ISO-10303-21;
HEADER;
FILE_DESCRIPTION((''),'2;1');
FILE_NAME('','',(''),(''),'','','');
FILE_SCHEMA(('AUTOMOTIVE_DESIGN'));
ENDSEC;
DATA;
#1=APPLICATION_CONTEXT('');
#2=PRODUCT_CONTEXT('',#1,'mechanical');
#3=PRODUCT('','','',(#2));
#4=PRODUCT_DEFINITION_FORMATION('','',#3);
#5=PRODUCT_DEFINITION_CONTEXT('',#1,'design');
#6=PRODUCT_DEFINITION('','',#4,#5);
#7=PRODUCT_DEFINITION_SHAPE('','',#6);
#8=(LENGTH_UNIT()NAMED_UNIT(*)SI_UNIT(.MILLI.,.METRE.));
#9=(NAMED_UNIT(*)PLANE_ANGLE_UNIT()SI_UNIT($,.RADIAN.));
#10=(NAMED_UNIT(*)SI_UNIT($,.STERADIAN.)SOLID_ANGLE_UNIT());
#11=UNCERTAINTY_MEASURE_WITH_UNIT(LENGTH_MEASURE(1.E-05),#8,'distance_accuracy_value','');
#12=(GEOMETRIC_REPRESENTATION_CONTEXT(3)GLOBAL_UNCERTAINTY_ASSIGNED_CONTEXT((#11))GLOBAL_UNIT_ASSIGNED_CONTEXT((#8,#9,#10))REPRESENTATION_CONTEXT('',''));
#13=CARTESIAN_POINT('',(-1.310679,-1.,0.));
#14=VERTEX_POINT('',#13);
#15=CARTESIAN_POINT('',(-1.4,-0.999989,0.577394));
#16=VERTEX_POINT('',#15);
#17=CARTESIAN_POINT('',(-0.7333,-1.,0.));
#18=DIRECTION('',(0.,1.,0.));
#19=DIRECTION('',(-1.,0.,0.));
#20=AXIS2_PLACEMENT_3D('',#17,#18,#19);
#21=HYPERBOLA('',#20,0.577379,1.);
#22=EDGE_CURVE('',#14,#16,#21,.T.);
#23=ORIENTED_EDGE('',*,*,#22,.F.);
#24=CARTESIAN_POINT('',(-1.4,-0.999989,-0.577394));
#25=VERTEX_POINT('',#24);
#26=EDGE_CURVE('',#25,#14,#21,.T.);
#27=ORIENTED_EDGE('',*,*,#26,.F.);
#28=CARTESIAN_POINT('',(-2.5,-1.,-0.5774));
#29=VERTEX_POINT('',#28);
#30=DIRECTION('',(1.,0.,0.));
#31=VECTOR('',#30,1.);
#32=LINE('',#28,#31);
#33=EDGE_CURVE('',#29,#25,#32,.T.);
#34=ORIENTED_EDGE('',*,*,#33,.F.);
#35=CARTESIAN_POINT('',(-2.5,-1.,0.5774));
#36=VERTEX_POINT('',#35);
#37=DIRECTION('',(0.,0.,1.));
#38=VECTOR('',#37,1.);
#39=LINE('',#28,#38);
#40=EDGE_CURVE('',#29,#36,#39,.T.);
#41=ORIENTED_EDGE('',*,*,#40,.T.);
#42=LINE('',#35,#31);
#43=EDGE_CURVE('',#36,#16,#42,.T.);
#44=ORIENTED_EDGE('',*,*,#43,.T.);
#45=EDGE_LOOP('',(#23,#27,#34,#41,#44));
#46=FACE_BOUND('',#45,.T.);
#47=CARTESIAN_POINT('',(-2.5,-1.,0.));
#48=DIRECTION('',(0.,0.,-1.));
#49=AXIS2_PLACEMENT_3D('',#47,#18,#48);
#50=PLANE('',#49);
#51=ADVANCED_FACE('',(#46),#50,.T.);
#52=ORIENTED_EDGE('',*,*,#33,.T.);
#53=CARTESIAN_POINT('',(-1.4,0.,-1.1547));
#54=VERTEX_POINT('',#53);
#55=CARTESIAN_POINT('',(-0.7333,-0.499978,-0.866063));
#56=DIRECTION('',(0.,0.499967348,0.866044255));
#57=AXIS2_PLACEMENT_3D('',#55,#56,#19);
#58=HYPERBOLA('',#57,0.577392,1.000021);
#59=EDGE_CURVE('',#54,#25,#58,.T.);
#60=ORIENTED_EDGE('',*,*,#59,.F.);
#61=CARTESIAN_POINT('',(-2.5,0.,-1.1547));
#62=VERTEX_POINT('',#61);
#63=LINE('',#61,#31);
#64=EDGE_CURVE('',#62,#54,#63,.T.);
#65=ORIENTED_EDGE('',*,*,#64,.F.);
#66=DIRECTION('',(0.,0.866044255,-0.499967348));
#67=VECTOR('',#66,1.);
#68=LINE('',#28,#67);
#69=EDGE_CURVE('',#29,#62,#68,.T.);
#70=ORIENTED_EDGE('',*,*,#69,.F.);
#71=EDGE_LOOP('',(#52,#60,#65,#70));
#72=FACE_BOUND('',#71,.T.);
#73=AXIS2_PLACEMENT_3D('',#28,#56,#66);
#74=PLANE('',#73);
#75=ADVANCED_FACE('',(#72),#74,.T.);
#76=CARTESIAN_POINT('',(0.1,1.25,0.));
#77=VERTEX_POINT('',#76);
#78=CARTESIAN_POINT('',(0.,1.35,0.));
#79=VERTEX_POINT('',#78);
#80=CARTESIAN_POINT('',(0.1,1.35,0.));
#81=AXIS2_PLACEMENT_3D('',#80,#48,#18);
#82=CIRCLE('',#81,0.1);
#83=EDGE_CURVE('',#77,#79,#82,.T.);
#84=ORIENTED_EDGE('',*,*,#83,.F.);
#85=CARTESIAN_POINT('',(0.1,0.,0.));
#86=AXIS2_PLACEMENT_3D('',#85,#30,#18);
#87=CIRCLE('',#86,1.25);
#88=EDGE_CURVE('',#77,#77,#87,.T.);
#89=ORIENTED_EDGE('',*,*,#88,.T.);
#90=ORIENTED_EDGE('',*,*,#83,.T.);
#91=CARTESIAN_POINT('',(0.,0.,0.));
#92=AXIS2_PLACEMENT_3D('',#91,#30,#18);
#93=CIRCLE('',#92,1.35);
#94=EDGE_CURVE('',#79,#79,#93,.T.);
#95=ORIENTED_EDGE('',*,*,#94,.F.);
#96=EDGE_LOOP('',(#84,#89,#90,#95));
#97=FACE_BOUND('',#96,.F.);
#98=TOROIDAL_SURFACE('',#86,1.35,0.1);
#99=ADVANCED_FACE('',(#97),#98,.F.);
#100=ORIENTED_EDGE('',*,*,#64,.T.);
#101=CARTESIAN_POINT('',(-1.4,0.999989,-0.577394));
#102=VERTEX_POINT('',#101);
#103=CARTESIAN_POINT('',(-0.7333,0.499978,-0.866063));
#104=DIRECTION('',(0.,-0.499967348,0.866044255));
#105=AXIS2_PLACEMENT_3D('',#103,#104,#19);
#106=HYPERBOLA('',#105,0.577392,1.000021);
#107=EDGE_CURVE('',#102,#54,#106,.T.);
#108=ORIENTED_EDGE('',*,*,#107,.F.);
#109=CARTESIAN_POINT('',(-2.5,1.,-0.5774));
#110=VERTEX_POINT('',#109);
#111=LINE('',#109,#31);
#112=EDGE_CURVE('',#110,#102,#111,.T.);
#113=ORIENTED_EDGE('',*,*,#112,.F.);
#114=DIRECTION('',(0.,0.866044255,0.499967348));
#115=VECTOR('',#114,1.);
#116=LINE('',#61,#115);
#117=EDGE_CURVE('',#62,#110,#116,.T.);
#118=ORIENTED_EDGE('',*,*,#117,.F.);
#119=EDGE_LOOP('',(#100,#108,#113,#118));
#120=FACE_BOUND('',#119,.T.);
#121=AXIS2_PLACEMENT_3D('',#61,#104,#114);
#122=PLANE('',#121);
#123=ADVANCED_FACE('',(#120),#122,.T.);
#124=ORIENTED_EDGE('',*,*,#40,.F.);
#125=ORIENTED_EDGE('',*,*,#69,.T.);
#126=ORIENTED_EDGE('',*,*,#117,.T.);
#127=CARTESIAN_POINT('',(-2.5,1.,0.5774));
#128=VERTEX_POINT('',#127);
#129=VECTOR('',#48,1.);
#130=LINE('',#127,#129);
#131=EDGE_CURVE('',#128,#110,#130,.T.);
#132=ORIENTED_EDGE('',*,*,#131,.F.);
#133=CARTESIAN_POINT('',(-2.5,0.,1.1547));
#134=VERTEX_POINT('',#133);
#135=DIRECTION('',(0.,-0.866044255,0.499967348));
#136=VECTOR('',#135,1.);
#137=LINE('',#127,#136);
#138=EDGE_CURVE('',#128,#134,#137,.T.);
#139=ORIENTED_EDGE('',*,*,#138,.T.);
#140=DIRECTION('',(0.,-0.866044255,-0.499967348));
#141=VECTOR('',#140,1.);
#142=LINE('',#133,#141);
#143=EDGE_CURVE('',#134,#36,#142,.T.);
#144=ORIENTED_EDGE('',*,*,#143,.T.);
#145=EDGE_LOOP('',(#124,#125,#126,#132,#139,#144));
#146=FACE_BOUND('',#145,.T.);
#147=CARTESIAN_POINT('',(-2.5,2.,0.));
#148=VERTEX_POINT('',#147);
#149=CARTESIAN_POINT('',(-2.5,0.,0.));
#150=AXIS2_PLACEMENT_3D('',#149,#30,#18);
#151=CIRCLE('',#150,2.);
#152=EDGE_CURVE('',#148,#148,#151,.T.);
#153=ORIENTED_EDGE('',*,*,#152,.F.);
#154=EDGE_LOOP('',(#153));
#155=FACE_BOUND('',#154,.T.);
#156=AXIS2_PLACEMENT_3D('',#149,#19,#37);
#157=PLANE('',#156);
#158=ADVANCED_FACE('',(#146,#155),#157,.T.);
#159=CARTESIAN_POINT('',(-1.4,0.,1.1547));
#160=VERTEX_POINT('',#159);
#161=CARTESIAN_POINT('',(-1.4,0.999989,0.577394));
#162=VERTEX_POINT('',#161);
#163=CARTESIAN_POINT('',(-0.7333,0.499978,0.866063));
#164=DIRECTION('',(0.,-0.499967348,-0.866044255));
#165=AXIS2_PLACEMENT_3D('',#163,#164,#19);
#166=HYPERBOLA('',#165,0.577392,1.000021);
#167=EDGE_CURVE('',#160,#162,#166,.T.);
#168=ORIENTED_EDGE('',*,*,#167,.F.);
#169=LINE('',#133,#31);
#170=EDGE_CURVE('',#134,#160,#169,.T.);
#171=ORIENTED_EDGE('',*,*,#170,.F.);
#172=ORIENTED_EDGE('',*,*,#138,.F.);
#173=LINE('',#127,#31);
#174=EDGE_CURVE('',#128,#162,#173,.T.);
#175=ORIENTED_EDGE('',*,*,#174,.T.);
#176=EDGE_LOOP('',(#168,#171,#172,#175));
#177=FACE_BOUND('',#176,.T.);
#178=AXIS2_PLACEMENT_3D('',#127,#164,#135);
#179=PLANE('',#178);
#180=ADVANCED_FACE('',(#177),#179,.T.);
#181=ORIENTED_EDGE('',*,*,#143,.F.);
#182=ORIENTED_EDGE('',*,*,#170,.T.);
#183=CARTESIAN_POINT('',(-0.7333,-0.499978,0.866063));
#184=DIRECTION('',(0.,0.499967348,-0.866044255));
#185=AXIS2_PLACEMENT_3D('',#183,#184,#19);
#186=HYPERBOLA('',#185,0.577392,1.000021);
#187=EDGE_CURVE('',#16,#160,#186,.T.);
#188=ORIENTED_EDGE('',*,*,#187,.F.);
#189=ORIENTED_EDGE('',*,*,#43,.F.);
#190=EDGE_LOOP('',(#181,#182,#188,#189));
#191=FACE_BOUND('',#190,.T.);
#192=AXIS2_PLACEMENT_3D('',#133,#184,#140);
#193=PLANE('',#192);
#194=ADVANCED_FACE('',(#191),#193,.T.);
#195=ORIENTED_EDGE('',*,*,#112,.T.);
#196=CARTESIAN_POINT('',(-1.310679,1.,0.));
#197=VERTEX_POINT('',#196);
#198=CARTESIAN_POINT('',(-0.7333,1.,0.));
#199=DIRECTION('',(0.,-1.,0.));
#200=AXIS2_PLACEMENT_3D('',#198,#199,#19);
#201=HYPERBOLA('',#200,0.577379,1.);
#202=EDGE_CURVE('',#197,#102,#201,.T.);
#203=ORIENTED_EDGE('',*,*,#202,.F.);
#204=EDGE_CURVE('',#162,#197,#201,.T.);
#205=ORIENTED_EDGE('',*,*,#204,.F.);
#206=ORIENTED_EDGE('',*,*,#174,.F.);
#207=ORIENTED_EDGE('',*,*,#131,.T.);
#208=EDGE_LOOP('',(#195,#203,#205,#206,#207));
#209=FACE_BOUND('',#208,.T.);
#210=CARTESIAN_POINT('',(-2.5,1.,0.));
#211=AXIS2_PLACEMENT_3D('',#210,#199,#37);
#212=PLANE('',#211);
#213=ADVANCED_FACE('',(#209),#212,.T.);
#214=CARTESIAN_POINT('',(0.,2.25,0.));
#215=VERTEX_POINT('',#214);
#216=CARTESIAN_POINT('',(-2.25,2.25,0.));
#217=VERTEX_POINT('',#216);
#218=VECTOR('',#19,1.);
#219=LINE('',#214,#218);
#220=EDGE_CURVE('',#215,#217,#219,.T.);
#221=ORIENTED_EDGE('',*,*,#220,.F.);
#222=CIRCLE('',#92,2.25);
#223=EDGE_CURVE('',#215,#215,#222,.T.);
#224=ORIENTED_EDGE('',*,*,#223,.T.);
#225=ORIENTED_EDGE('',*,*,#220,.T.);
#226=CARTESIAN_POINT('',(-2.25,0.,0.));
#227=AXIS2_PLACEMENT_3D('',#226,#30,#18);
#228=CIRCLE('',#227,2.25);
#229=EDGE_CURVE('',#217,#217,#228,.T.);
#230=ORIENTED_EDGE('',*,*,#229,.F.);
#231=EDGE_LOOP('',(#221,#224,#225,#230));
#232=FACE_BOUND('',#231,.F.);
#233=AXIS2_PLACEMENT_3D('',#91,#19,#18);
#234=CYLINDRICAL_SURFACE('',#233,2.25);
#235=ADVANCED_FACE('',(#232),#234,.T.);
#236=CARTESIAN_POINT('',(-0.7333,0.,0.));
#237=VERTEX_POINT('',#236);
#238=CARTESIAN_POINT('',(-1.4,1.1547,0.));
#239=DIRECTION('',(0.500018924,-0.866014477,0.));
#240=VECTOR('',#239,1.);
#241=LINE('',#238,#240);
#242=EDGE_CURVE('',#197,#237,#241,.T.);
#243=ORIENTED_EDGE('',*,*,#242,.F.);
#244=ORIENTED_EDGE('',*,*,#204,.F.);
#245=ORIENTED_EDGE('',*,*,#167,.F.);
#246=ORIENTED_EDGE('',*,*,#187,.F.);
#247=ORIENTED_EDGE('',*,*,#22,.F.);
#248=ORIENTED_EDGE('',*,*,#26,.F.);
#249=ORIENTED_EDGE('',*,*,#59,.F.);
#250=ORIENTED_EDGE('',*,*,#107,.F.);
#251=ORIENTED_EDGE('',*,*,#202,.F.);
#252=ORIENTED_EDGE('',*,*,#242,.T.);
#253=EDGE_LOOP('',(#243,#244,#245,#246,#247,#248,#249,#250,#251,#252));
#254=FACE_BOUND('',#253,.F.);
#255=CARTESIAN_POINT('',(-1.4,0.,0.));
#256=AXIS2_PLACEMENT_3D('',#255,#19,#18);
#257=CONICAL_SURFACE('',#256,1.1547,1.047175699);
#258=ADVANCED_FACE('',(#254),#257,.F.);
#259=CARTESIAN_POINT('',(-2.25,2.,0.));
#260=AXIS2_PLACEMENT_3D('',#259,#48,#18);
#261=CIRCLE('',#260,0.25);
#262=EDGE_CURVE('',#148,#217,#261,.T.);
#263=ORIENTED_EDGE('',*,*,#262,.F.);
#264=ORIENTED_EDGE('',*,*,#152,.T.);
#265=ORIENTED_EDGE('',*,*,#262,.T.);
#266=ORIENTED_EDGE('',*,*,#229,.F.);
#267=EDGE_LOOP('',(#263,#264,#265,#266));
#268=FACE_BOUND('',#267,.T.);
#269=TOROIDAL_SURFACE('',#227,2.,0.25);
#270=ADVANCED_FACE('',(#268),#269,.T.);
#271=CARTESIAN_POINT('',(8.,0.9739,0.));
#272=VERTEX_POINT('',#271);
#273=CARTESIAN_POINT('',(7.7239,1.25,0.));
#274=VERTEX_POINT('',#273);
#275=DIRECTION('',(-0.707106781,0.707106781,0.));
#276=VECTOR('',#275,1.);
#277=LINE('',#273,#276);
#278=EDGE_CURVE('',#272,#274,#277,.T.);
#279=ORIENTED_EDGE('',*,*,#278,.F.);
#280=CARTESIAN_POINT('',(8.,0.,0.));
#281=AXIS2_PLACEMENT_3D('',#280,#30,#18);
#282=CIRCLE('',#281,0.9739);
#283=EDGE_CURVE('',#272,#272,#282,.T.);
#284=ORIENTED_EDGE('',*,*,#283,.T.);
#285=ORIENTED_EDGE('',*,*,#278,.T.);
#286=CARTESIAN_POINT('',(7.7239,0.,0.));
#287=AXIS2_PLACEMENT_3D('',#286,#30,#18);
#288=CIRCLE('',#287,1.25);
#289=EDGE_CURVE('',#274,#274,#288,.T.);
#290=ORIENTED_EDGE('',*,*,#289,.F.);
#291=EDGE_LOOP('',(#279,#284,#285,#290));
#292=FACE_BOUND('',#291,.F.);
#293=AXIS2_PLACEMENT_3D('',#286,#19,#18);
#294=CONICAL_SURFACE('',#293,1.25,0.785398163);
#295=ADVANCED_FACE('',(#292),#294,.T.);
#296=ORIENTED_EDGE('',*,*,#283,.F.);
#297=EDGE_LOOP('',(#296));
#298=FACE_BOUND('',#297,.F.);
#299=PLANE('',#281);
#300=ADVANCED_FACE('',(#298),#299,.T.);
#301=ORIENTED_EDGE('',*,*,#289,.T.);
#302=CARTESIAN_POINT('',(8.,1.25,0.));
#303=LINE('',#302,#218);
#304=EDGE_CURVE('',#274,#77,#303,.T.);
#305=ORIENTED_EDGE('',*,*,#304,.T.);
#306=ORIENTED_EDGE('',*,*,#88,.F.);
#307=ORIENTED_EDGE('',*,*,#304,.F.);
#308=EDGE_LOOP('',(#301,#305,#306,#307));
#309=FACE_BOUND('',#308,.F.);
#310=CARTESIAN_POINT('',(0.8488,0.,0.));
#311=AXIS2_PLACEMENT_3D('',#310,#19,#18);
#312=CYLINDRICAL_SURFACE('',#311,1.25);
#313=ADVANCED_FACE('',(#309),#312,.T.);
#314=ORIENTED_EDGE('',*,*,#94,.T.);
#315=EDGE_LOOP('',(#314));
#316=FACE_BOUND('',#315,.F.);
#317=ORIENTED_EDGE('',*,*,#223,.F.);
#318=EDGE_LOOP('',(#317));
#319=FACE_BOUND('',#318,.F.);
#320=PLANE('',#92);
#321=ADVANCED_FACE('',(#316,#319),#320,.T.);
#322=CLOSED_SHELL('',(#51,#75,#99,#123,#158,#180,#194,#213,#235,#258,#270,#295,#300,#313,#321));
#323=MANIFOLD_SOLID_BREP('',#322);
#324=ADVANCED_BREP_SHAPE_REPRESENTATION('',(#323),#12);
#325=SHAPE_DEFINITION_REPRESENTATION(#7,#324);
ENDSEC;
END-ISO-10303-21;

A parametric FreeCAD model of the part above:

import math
import FreeCAD as App
import Part
import Sketcher

V = App.Vector


def edges_at(feature, points):
    """Names of the edges that pass closest to the given points."""
    edges = feature.Shape.Edges
    near = lambda p: min(range(len(edges)), key=lambda i: edges[i].distToShape(Part.Vertex(*p))[0])
    return sorted({f"Edge{near(p) + 1}" for p in points})

doc = App.newDocument("Part")
body = doc.addObject("PartDesign::Body", "Body")

# Sketch on XY plane
sketch1 = body.newObject("Sketcher::SketchObject", "Sketch")
sketch1.AttachmentSupport = (doc.getObject("XY_Plane"), [""])
sketch1.MapMode = "FlatFace"
sketch1.addGeometry([
    Part.LineSegment(V(-1.4, 1.2, 0), V(-0.7, 0, 0)),  # 0
    Part.LineSegment(V(-0.7, 0, 0), V(8, 0, 0)),  # 1
    Part.LineSegment(V(8, 0, 0), V(8, 1.2, 0)),  # 2
    Part.LineSegment(V(8, 1.2, 0), V(0, 1.2, 0)),  # 3
    Part.LineSegment(V(0, 1.2, 0), V(0, 2.2, 0)),  # 4
    Part.LineSegment(V(0, 2.2, 0), V(-2.5, 2.2, 0)),  # 5
    Part.LineSegment(V(-2.5, 2.2, 0), V(-2.5, 1.2, 0)),  # 6
    Part.LineSegment(V(-2.5, 1.2, 0), V(-1.4, 1.2, 0)),  # 7
], False)
sketch1.addConstraint([
    Sketcher.Constraint("Coincident", 0, 2, 1, 1),
    Sketcher.Constraint("Coincident", 1, 2, 2, 1),
    Sketcher.Constraint("Coincident", 2, 2, 3, 1),
    Sketcher.Constraint("Coincident", 3, 2, 4, 1),
    Sketcher.Constraint("Coincident", 4, 2, 5, 1),
    Sketcher.Constraint("Coincident", 5, 2, 6, 1),
    Sketcher.Constraint("Coincident", 6, 2, 7, 1),
    Sketcher.Constraint("Coincident", 7, 2, 0, 1),
    Sketcher.Constraint("Horizontal", 1),
    Sketcher.Constraint("Vertical", 2),
    Sketcher.Constraint("Horizontal", 3),
    Sketcher.Constraint("Vertical", 4),
    Sketcher.Constraint("Horizontal", 5),
    Sketcher.Constraint("Vertical", 6),
    Sketcher.Constraint("Horizontal", 7),
    Sketcher.Constraint("PointOnObject", 0, 2, -1),
    Sketcher.Constraint("PointOnObject", 3, 2, -2),
    Sketcher.Constraint("DistanceX", 3, 2, 3, 1, 8.0),
    Sketcher.Constraint("DistanceX", 5, 2, 5, 1, 2.5),
    Sketcher.Constraint("DistanceX", 7, 1, 7, 2, 1.1),
    Sketcher.Constraint("DistanceY", 4, 1, 4, 2, 1.0),
    Sketcher.Constraint("DistanceY", 2, 1, 2, 2, 1.25),
    Sketcher.Constraint("DistanceX", 1, 1, 1, 2, 8.7333),
    Sketcher.Constraint("DistanceY", 6, 2, 6, 1, 1.0953),
])
revolution = body.newObject("PartDesign::Revolution", "Revolution")
revolution.Profile = sketch1
revolution.ReferenceAxis = (sketch1, ["H_Axis"])
revolution.Angle = 360

# Sketch on YZ plane
sketch2 = body.newObject("Sketcher::SketchObject", "Sketch001")
sketch2.AttachmentSupport = (doc.getObject("YZ_Plane"), [""])
sketch2.MapMode = "FlatFace"
sketch2.AttachmentOffset = App.Placement(V(0, 0, -2.5), App.Rotation())
sketch2.addGeometry([
    Part.LineSegment(V(1, 0.6, 0), V(0, 1.2, 0)),  # 0
    Part.ArcOfCircle(Part.Circle(V(0, 0, 0), V(0, 0, 1), 1.2), math.radians(30), math.radians(90)),  # 1
    Part.ArcOfCircle(Part.Circle(V(0, 0, 0), V(0, 0, 1), 1.2), math.radians(90), math.radians(150)),  # 2
    Part.LineSegment(V(0, 1.2, 0), V(-1, 0.6, 0)),  # 3
    Part.ArcOfCircle(Part.Circle(V(0, 0, 0), V(0, 0, 1), 1.2), math.radians(-30), math.radians(30)),  # 4
    Part.LineSegment(V(1, 0.6, 0), V(1, -0.6, 0)),  # 5
    Part.LineSegment(V(-1, 0.6, 0), V(-1, -0.6, 0)),  # 6
    Part.ArcOfCircle(Part.Circle(V(0, 0, 0), V(0, 0, 1), 1.2), math.radians(150), math.radians(210)),  # 7
    Part.LineSegment(V(-1, -0.6, 0), V(0, -1.2, 0)),  # 8
    Part.ArcOfCircle(Part.Circle(V(0, 0, 0), V(0, 0, 1), 1.2), math.radians(-150), math.radians(-90)),  # 9
    Part.ArcOfCircle(Part.Circle(V(0, 0, 0), V(0, 0, 1), 1.2), math.radians(-90), math.radians(-30)),  # 10
    Part.LineSegment(V(0, -1.2, 0), V(1, -0.6, 0)),  # 11
], False)
sketch2.addConstraint([
    Sketcher.Constraint("Coincident", 0, 1, 1, 1),
    Sketcher.Constraint("Coincident", 1, 2, 0, 2),
    Sketcher.Constraint("Coincident", 2, 1, 3, 1),
    Sketcher.Constraint("Coincident", 3, 2, 2, 2),
    Sketcher.Constraint("Coincident", 4, 1, 5, 2),
    Sketcher.Constraint("Coincident", 5, 1, 4, 2),
    Sketcher.Constraint("Coincident", 6, 1, 7, 1),
    Sketcher.Constraint("Coincident", 7, 2, 6, 2),
    Sketcher.Constraint("Coincident", 8, 1, 9, 1),
    Sketcher.Constraint("Coincident", 9, 2, 8, 2),
    Sketcher.Constraint("Coincident", 10, 1, 11, 1),
    Sketcher.Constraint("Coincident", 11, 2, 10, 2),
    Sketcher.Constraint("Vertical", 5),
    Sketcher.Constraint("Vertical", 6),
    Sketcher.Constraint("Coincident", 1, 3, -1, 1),
    Sketcher.Constraint("Coincident", 2, 3, -1, 1),
    Sketcher.Constraint("Coincident", 4, 3, -1, 1),
    Sketcher.Constraint("Coincident", 7, 3, -1, 1),
    Sketcher.Constraint("Coincident", 9, 3, -1, 1),
    Sketcher.Constraint("Coincident", 10, 3, -1, 1),
    Sketcher.Constraint("Coincident", 2, 1, 1, 2),
    Sketcher.Constraint("Coincident", 5, 1, 0, 1),
    Sketcher.Constraint("Coincident", 6, 1, 3, 2),
    Sketcher.Constraint("Coincident", 8, 1, 7, 2),
    Sketcher.Constraint("Coincident", 10, 1, 9, 2),
    Sketcher.Constraint("PointOnObject", 1, 2, -2),
    Sketcher.Constraint("PointOnObject", 9, 2, -2),
    Sketcher.Constraint("Parallel", 0, 8),
    Sketcher.Constraint("Parallel", 3, 11),
    Sketcher.Constraint("DistanceX", -1, 1, 0, 1, 1.0),
    Sketcher.Constraint("Radius", 1, 1.1547),
])
pad1 = body.newObject("PartDesign::Pad", "Pad")
pad1.Profile = sketch2
pad1.Type = "UpToFirst"
doc.recompute()

fillet = body.newObject("PartDesign::Fillet", "Fillet")
fillet.Base = (pad1, edges_at(pad1, [(-2.5, -2.25, 0)]))
fillet.Radius = 0.25
doc.recompute()

chamfer = body.newObject("PartDesign::Chamfer", "Chamfer")
chamfer.Base = (fillet, edges_at(fillet, [(8, -1.25, 0)]))
chamfer.ChamferType = "Two distances"
chamfer.Size = 0.2761
chamfer.Size2 = 0.2761
doc.recompute()

fillet2 = body.newObject("PartDesign::Fillet", "Fillet001")
fillet2.Base = (chamfer, edges_at(chamfer, [(0, -1.25, 0)]))
fillet2.Radius = 0.1

doc.recompute()
